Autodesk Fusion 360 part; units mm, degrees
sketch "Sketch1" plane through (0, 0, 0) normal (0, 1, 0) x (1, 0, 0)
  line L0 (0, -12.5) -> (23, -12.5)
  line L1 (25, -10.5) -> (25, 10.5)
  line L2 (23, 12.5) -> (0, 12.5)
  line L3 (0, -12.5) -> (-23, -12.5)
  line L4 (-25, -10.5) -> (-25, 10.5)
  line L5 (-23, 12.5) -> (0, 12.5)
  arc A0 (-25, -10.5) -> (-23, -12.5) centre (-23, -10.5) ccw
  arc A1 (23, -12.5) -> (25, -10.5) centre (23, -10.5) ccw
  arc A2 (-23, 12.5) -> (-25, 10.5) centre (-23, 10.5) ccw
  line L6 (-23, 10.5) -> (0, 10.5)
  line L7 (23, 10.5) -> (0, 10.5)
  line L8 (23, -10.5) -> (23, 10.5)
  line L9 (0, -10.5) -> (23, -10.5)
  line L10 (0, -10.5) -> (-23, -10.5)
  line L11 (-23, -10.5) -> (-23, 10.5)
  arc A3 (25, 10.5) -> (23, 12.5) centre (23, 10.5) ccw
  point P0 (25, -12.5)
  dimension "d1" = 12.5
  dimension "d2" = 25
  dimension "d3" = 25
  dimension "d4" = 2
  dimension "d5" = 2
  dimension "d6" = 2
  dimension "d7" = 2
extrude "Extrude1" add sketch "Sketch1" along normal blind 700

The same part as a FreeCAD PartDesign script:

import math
import FreeCAD as App
import Part
import Sketcher

doc = App.newDocument("Part")
body = doc.addObject("PartDesign::Body", "Body")

# Sketch on XZ plane
sketch1 = body.newObject("Sketcher::SketchObject", "Sketch")
sketch1.AttachmentSupport = (doc.getObject("XZ_Plane"), [""])
sketch1.MapMode = "FlatFace"
sketch1.addGeometry(Part.LineSegment(App.Vector(-23, 12.5, 0), App.Vector(23, 12.5, 0)), False)
sketch1.addGeometry(Part.ArcOfCircle(Part.Circle(App.Vector(23, 10.5, 0), App.Vector(0, 0, 1), 2), math.radians(0), math.radians(90)), False)
sketch1.addGeometry(Part.LineSegment(App.Vector(25, 10.5, 0), App.Vector(25, -10.5, 0)), False)
sketch1.addGeometry(Part.ArcOfCircle(Part.Circle(App.Vector(23, -10.5, 0), App.Vector(0, 0, 1), 2), math.radians(-90), math.radians(0)), False)
sketch1.addGeometry(Part.LineSegment(App.Vector(23, -12.5, 0), App.Vector(-23, -12.5, 0)), False)
sketch1.addGeometry(Part.ArcOfCircle(Part.Circle(App.Vector(-23, -10.5, 0), App.Vector(0, 0, 1), 2), math.radians(180), math.radians(270)), False)
sketch1.addGeometry(Part.LineSegment(App.Vector(-25, -10.5, 0), App.Vector(-25, 10.5, 0)), False)
sketch1.addGeometry(Part.ArcOfCircle(Part.Circle(App.Vector(-23, 10.5, 0), App.Vector(0, 0, 1), 2), math.radians(90), math.radians(180)), False)
sketch1.addGeometry(Part.LineSegment(App.Vector(-23, 10.5, 0), App.Vector(-23, -10.5, 0)), False)
sketch1.addGeometry(Part.LineSegment(App.Vector(-23, -10.5, 0), App.Vector(23, -10.5, 0)), False)
sketch1.addGeometry(Part.LineSegment(App.Vector(23, -10.5, 0), App.Vector(23, 10.5, 0)), False)
sketch1.addGeometry(Part.LineSegment(App.Vector(23, 10.5, 0), App.Vector(-23, 10.5, 0)), False)
sketch1.addConstraint(Sketcher.Constraint("Tangent", 0, 2, 1, 2))
sketch1.addConstraint(Sketcher.Constraint("Tangent", 1, 1, 2, 1))
sketch1.addConstraint(Sketcher.Constraint("Tangent", 2, 2, 3, 2))
sketch1.addConstraint(Sketcher.Constraint("Tangent", 3, 1, 4, 1))
sketch1.addConstraint(Sketcher.Constraint("Tangent", 4, 2, 5, 2))
sketch1.addConstraint(Sketcher.Constraint("Tangent", 5, 1, 6, 1))
sketch1.addConstraint(Sketcher.Constraint("Tangent", 6, 2, 7, 2))
sketch1.addConstraint(Sketcher.Constraint("Tangent", 7, 1, 0, 1))
sketch1.addConstraint(Sketcher.Constraint("Coincident", 8, 2, 9, 1))
sketch1.addConstraint(Sketcher.Constraint("Coincident", 9, 2, 10, 1))
sketch1.addConstraint(Sketcher.Constraint("Coincident", 10, 2, 11, 1))
sketch1.addConstraint(Sketcher.Constraint("Coincident", 11, 2, 8, 1))
sketch1.addConstraint(Sketcher.Constraint("Horizontal", 0))
sketch1.addConstraint(Sketcher.Constraint("Vertical", 2))
sketch1.addConstraint(Sketcher.Constraint("Horizontal", 4))
sketch1.addConstraint(Sketcher.Constraint("Vertical", 6))
sketch1.addConstraint(Sketcher.Constraint("Vertical", 8))
sketch1.addConstraint(Sketcher.Constraint("Horizontal", 9))
sketch1.addConstraint(Sketcher.Constraint("Vertical", 10))
sketch1.addConstraint(Sketcher.Constraint("Horizontal", 11))
sketch1.addConstraint(Sketcher.Constraint("Coincident", 8, 2, 5, 3))
sketch1.addConstraint(Sketcher.Constraint("Coincident", 9, 2, 3, 3))
sketch1.addConstraint(Sketcher.Constraint("Coincident", 10, 2, 1, 3))
sketch1.addConstraint(Sketcher.Constraint("Equal", 5, 7))
sketch1.addConstraint(Sketcher.Constraint("Symmetric", 1, 3, 5, 3, -1, 1))
sketch1.addConstraint(Sketcher.Constraint("Radius", 1, 2.0))
sketch1.addConstraint(Sketcher.Constraint("DistanceX", -1, 1, 1, 1, 25.0))
sketch1.addConstraint(Sketcher.Constraint("DistanceY", 3, 1, 0, 2, 25.0))
pad1 = body.newObject("PartDesign::Pad", "Pad")
pad1.Profile = sketch1
pad1.Length = 700
pad1.Reversed = True

doc.recompute()
